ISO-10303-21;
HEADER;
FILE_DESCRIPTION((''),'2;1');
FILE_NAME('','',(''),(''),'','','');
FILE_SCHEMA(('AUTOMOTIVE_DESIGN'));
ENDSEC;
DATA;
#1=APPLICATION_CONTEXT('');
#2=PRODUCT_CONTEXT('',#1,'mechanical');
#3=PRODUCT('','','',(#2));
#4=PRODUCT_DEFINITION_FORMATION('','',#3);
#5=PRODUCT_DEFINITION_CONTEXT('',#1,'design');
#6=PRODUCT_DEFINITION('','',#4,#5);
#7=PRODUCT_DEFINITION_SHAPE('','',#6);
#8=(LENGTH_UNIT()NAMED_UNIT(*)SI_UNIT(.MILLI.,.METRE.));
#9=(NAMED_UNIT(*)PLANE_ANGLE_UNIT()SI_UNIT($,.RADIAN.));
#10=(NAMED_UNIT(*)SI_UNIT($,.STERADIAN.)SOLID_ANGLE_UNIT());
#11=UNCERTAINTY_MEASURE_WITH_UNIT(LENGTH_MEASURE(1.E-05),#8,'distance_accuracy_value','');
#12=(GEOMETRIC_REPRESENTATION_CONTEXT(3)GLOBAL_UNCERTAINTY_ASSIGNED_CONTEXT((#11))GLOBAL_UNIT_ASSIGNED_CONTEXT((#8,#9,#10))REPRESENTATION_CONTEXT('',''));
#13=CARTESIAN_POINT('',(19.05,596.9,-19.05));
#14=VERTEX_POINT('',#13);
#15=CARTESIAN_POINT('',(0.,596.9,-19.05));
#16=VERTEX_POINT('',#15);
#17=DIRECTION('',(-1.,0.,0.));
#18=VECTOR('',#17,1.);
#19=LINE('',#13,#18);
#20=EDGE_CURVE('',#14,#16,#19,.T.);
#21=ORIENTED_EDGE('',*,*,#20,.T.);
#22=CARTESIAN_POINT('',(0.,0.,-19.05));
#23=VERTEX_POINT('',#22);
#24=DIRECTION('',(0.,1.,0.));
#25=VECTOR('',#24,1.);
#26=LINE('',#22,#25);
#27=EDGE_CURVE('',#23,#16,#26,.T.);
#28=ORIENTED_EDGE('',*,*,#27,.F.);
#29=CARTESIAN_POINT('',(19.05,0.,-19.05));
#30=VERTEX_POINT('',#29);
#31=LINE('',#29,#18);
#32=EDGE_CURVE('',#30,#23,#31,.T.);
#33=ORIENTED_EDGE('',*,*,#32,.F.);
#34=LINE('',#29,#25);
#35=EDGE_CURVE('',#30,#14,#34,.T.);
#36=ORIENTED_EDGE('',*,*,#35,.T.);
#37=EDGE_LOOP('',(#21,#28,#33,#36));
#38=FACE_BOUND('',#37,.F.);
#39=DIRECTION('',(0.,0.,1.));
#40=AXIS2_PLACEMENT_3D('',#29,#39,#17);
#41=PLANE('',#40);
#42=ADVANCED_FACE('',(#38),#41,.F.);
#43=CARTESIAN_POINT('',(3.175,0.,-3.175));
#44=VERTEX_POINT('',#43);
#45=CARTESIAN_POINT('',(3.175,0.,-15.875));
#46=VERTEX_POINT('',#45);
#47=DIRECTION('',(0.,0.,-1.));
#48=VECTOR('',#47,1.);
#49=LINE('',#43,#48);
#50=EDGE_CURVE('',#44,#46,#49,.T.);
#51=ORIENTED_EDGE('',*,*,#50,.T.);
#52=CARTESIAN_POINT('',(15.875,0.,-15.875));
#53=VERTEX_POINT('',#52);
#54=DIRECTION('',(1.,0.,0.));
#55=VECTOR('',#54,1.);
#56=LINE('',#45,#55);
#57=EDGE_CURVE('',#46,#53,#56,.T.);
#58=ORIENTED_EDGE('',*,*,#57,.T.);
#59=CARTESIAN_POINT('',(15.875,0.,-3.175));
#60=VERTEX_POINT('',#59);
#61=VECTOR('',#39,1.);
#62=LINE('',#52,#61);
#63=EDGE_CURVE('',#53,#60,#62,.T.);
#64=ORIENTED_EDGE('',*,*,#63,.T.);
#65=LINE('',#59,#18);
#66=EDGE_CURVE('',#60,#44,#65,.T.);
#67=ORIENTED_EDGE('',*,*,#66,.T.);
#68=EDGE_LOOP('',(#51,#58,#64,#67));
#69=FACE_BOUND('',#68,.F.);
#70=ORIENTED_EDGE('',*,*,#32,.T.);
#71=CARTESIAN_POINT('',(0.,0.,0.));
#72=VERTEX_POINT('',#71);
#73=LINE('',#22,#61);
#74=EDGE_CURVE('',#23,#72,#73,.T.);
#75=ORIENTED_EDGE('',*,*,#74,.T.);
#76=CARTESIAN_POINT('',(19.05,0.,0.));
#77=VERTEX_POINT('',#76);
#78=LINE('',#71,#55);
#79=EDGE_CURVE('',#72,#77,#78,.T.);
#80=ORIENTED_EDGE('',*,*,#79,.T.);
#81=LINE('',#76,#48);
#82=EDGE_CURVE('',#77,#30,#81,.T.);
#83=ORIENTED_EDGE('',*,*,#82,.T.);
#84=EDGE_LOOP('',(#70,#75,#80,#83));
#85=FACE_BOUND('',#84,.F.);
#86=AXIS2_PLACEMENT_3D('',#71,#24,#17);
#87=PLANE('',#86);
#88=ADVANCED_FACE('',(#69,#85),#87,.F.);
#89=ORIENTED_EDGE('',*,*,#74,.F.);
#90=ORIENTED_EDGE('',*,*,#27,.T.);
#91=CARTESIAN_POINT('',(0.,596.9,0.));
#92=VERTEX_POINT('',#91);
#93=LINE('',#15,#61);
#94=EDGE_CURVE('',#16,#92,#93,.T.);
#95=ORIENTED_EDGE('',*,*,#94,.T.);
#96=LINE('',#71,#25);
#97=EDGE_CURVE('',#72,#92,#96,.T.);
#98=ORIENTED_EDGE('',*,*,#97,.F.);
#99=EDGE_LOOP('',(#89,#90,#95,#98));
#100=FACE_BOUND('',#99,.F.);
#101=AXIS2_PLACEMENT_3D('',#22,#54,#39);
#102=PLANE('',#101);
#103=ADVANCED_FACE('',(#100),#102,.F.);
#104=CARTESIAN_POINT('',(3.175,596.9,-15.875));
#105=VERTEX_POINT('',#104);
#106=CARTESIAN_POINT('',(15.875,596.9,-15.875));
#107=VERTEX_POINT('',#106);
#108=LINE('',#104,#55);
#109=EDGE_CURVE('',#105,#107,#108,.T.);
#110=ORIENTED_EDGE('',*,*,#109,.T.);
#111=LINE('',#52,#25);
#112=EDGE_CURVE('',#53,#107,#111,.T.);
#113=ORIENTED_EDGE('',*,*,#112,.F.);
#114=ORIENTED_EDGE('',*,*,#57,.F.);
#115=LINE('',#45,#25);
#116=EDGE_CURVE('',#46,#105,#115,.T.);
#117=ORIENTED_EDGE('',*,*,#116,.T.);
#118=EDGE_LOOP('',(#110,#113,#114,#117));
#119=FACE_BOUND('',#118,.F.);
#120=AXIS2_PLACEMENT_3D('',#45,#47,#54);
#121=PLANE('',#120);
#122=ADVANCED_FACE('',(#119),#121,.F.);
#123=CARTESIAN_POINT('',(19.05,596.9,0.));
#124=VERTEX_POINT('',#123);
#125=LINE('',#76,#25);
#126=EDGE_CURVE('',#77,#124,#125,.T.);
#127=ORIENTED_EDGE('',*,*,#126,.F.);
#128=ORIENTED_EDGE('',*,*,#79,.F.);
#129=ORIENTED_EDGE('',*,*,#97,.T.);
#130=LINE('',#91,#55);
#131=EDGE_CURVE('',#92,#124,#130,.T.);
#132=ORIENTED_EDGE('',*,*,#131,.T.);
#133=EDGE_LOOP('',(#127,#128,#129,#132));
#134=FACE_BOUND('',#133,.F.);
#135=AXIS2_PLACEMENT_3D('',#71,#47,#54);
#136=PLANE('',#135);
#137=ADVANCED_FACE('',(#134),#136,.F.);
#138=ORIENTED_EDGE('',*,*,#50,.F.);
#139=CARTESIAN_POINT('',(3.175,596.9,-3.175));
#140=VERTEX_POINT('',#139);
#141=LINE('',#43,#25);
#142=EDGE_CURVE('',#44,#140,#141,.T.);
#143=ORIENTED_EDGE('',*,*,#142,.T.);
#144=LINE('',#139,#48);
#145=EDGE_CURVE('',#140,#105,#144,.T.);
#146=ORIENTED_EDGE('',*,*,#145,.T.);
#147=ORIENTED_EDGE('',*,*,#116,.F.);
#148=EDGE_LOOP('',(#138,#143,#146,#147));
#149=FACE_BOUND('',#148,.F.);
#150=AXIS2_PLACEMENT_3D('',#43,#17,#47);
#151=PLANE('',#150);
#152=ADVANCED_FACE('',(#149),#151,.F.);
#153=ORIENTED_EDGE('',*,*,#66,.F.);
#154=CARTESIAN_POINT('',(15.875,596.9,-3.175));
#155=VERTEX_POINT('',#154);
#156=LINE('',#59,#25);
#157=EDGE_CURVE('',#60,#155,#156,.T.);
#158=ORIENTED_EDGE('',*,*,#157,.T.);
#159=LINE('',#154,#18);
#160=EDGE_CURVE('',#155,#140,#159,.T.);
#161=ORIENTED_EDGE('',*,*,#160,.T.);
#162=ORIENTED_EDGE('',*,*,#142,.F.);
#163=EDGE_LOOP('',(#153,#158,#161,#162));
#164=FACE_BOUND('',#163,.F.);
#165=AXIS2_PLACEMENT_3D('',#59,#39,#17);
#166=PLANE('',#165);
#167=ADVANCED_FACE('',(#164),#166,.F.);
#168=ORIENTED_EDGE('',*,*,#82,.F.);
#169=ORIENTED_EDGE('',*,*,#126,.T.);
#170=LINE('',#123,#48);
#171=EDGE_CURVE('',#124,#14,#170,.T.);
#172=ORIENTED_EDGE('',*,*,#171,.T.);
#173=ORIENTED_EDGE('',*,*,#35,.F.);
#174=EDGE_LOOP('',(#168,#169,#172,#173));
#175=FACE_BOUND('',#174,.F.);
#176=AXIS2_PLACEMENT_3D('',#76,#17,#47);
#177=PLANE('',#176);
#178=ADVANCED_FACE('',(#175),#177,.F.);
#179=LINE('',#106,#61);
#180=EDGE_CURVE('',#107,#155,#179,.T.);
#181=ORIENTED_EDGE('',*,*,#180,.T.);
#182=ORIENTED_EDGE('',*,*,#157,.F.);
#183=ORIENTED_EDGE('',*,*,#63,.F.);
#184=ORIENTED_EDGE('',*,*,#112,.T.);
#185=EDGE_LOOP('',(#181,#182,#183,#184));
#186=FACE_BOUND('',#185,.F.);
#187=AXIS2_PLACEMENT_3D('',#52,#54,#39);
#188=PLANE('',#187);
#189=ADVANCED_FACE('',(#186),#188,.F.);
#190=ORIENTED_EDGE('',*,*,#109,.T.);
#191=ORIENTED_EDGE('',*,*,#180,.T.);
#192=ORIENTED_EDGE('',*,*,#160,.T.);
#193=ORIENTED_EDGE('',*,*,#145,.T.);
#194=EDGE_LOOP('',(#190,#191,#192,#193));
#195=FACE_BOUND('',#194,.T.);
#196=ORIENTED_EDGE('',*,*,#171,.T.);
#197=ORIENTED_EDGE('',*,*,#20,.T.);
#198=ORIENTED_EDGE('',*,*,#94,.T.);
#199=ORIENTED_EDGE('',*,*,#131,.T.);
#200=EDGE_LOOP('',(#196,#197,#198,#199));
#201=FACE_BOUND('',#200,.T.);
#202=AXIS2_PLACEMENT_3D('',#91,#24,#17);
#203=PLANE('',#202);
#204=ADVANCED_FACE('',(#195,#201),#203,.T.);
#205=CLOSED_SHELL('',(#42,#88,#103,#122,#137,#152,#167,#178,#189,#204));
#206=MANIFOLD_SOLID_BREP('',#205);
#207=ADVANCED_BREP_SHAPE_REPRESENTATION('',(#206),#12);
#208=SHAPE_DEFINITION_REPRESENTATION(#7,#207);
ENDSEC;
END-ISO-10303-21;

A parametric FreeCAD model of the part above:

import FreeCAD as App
import Part
import Sketcher

V = App.Vector
Q = App.Units.Quantity

doc = App.newDocument("Part")
body = doc.addObject("PartDesign::Body", "Body")

# Sketch on XZ plane
sketch1 = body.newObject("Sketcher::SketchObject", "Sketch")
sketch1.AttachmentSupport = (doc.getObject("XZ_Plane"), [""])
sketch1.MapMode = "FlatFace"
sketch1.addGeometry(Part.LineSegment(V(0, -19, 0), V(0, 0, 0)), False)
sketch1.addGeometry(Part.LineSegment(V(0, 0, 0), V(19, 0, 0)), False)
sketch1.addGeometry(Part.LineSegment(V(19, 0, 0), V(19, -19, 0)), False)
sketch1.addGeometry(Part.LineSegment(V(19, -19, 0), V(0, -19, 0)), False)
sketch1.addGeometry(Part.LineSegment(V(3, -3, 0), V(3, -16, 0)), False)
sketch1.addGeometry(Part.LineSegment(V(3, -16, 0), V(16, -16, 0)), False)
sketch1.addGeometry(Part.LineSegment(V(16, -16, 0), V(16, -3, 0)), False)
sketch1.addGeometry(Part.LineSegment(V(16, -3, 0), V(3, -3, 0)), False)
sketch1.addConstraint(Sketcher.Constraint("Coincident", 0, 2, 1, 1))
sketch1.addConstraint(Sketcher.Constraint("Coincident", 1, 2, 2, 1))
sketch1.addConstraint(Sketcher.Constraint("Coincident", 2, 2, 3, 1))
sketch1.addConstraint(Sketcher.Constraint("Coincident", 3, 2, 0, 1))
sketch1.addConstraint(Sketcher.Constraint("Coincident", 4, 2, 5, 1))
sketch1.addConstraint(Sketcher.Constraint("Coincident", 5, 2, 6, 1))
sketch1.addConstraint(Sketcher.Constraint("Coincident", 6, 2, 7, 1))
sketch1.addConstraint(Sketcher.Constraint("Coincident", 7, 2, 4, 1))
sketch1.addConstraint(Sketcher.Constraint("Vertical", 0))
sketch1.addConstraint(Sketcher.Constraint("Horizontal", 1))
sketch1.addConstraint(Sketcher.Constraint("Vertical", 2))
sketch1.addConstraint(Sketcher.Constraint("Horizontal", 3))
sketch1.addConstraint(Sketcher.Constraint("Vertical", 4))
sketch1.addConstraint(Sketcher.Constraint("Horizontal", 5))
sketch1.addConstraint(Sketcher.Constraint("Vertical", 6))
sketch1.addConstraint(Sketcher.Constraint("Horizontal", 7))
sketch1.addConstraint(Sketcher.Constraint("Coincident", 0, 2, -1, 1))
sketch1.addConstraint(Sketcher.Constraint("Equal", 3, 0))
sketch1.addConstraint(Sketcher.Constraint("Equal", 7, 4))
sketch1.addConstraint(Sketcher.Constraint("DistanceX", 1, 1, 1, 2, Q("0.75 in")))
sketch1.addConstraint(Sketcher.Constraint("DistanceX", 5, 1, 5, 2, Q("0.5 in")))
sketch1.addConstraint(Sketcher.Constraint("DistanceX", -1, 1, 4, 2, Q("0.125 in")))
sketch1.addConstraint(Sketcher.Constraint("DistanceY", 6, 2, -1, 1, Q("0.125 in")))
pad1 = body.newObject("PartDesign::Pad", "Pad")
pad1.Profile = sketch1
pad1.Length = Q("23.5 in")
pad1.Reversed = True

doc.recompute()
